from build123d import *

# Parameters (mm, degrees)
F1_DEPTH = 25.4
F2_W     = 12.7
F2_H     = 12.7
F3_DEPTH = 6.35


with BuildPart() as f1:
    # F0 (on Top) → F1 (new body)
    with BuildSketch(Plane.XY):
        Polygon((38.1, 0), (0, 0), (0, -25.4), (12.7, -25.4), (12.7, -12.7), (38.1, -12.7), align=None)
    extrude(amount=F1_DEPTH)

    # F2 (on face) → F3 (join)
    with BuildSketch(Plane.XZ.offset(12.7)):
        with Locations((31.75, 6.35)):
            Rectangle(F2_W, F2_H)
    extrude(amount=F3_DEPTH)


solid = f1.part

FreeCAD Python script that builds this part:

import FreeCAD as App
import Part
import Sketcher
Q = App.Units.Quantity


def add_polygon(sketch, points):
    """Adds a closed chain of lines whose ends are joined by coincident constraints."""
    first, n = sketch.GeometryCount, len(points)
    for a, b in zip(points, points[1:] + points[:1]):
        sketch.addGeometry(Part.LineSegment(App.Vector(*a, 0), App.Vector(*b, 0)), False)
    for i in range(n):
        sketch.addConstraint(Sketcher.Constraint("Coincident", first + i, 2, first + (i + 1) % n, 1))

doc = App.newDocument("Part")
params = doc.addObject("Spreadsheet::Sheet", "Params")
for row, (alias, value) in enumerate([
    ("sketch1_width", "1 in"),
    ("pad1_length", "1 in"),
    ("sketch2_width", "0.5 in"),
    ("pad2_length", "0.25 in"),
], start=1):
    params.set(f"A{row}", alias)
    params.set(f"B{row}", "=" + value)
    params.setAlias(f"B{row}", alias)

body = doc.addObject("PartDesign::Body", "Body")

# Sketch on XY plane
sketch1 = body.newObject("Sketcher::SketchObject", "Sketch")
sketch1.AttachmentSupport = (doc.getObject("XY_Plane"), [""])
sketch1.MapMode = "FlatFace"
add_polygon(sketch1, [(38, 0), (0, 0), (0, -25), (13, -25), (13, -13), (38, -13)])  # lines 0-5
sketch1.addConstraint([
    Sketcher.Constraint("Horizontal", 0),
    Sketcher.Constraint("Vertical", 1),
    Sketcher.Constraint("Horizontal", 2),
    Sketcher.Constraint("Vertical", 3),
    Sketcher.Constraint("Horizontal", 4),
    Sketcher.Constraint("Vertical", 5),
    Sketcher.Constraint("Coincident", 0, 2, -1, 1),
    Sketcher.Constraint("Equal", 4, 1),
    Sketcher.Constraint("Equal", 2, 3),
    Sketcher.Constraint("Equal", 3, 5),
    Sketcher.Constraint("DistanceX", 4, 1, 4, 2, Q("1 in")),
])
sketch1.setExpression("Constraints[16]", "Params.sketch1_width")
pad1 = body.newObject("PartDesign::Pad", "Pad")
pad1.Profile = sketch1
pad1.setExpression("Length", "Params.pad1_length")

# Sketch on XZ plane
sketch2 = body.newObject("Sketcher::SketchObject", "Sketch001")
sketch2.AttachmentSupport = (doc.getObject("XZ_Plane"), [""])
sketch2.MapMode = "FlatFace"
sketch2.AttachmentOffset = App.Placement(App.Vector(0, 0, 0.5 * 25.4), App.Rotation())
add_polygon(sketch2, [(25, 13), (25, 0), (38, 0), (38, 13)])  # lines 0-3
sketch2.addConstraint([
    Sketcher.Constraint("Vertical", 0),
    Sketcher.Constraint("Horizontal", 1),
    Sketcher.Constraint("Vertical", 2),
    Sketcher.Constraint("Horizontal", 3),
    Sketcher.Constraint("PointOnObject", 0, 2, -1),
    Sketcher.Constraint("Equal", 3, 0),
    Sketcher.Constraint("DistanceX", 1, 1, 1, 2, Q("0.5 in")),
    Sketcher.Constraint("DistanceX", -1, 1, 0, 2, Q("1 in")),
])
sketch2.setExpression("Constraints[10]", "Params.sketch2_width")
pad2 = body.newObject("PartDesign::Pad", "Pad001")
pad2.Profile = sketch2
pad2.setExpression("Length", "Params.pad2_length")

doc.recompute()
